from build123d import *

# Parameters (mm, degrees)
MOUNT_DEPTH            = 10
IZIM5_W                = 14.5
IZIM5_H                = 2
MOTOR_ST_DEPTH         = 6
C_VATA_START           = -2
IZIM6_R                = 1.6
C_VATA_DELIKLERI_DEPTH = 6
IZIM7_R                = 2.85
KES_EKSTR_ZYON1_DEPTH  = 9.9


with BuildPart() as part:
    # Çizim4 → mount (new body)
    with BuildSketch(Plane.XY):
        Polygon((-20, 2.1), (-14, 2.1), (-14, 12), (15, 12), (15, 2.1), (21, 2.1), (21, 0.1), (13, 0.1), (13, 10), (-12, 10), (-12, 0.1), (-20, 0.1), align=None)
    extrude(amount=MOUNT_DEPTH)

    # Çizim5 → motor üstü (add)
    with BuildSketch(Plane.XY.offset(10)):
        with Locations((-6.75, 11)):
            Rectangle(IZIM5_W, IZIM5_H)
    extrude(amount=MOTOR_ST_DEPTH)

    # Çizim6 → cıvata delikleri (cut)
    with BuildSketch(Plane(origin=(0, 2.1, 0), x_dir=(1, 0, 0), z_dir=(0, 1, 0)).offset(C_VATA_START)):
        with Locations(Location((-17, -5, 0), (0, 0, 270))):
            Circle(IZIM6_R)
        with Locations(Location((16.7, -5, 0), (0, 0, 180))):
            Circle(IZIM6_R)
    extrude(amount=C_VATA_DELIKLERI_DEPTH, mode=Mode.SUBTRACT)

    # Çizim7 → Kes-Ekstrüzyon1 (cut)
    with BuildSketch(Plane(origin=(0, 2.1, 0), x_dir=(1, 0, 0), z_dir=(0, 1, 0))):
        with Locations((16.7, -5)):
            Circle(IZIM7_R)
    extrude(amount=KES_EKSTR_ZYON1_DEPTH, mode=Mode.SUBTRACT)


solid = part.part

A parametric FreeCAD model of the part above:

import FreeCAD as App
import Part
import Sketcher

V = App.Vector

doc = App.newDocument("Part")
body = doc.addObject("PartDesign::Body", "Body")

sketch1 = body.newObject("Sketcher::SketchObject", "Sketch")
sketch1.AttachmentSupport = (doc.getObject("XY_Plane"), [""])
sketch1.MapMode = "FlatFace"
sketch1.addGeometry([
    Part.LineSegment(V(-14, 2.1, 0), V(-20, 2.1, 0)),
    Part.LineSegment(V(-20, 2.1, 0), V(-20, 0.1, 0)),
    Part.LineSegment(V(-20, 0.1, 0), V(-12, 0.1, 0)),
    Part.LineSegment(V(-12, 0.1, 0), V(-12, 10, 0)),
    Part.LineSegment(V(-12, 10, 0), V(13, 10, 0)),
    Part.LineSegment(V(13, 10, 0), V(13, 0.1, 0)),
    Part.LineSegment(V(13, 0.1, 0), V(21, 0.1, 0)),
    Part.LineSegment(V(21, 0.1, 0), V(21, 2.1, 0)),
    Part.LineSegment(V(21, 2.1, 0), V(15, 2.1, 0)),
    Part.LineSegment(V(15, 2.1, 0), V(15, 12, 0)),
    Part.LineSegment(V(15, 12, 0), V(-14, 12, 0)),
    Part.LineSegment(V(-14, 12, 0), V(-14, 2.1, 0)),
], False)
sketch1.addConstraint([
    Sketcher.Constraint("Coincident", 0, 2, 1, 1),
    Sketcher.Constraint("Coincident", 1, 2, 2, 1),
    Sketcher.Constraint("Coincident", 2, 2, 3, 1),
    Sketcher.Constraint("Coincident", 3, 2, 4, 1),
    Sketcher.Constraint("Coincident", 4, 2, 5, 1),
    Sketcher.Constraint("Coincident", 5, 2, 6, 1),
    Sketcher.Constraint("Coincident", 6, 2, 7, 1),
    Sketcher.Constraint("Coincident", 7, 2, 8, 1),
    Sketcher.Constraint("Coincident", 8, 2, 9, 1),
    Sketcher.Constraint("Coincident", 9, 2, 10, 1),
    Sketcher.Constraint("Coincident", 10, 2, 11, 1),
    Sketcher.Constraint("Coincident", 11, 2, 0, 1),
    Sketcher.Constraint("Horizontal", 0),
    Sketcher.Constraint("Vertical", 1),
    Sketcher.Constraint("Horizontal", 2),
    Sketcher.Constraint("Vertical", 3),
    Sketcher.Constraint("Horizontal", 4),
    Sketcher.Constraint("Vertical", 5),
    Sketcher.Constraint("Horizontal", 6),
    Sketcher.Constraint("Vertical", 7),
    Sketcher.Constraint("Horizontal", 8),
    Sketcher.Constraint("Vertical", 9),
    Sketcher.Constraint("Horizontal", 10),
    Sketcher.Constraint("Vertical", 11),
    Sketcher.Constraint("Horizontal", 2, 2, 5, 2),
    Sketcher.Constraint("Horizontal", 0, 2, 7, 2),
    Sketcher.Constraint("Equal", 2, 6),
    Sketcher.Constraint("Equal", 0, 8),
    Sketcher.Constraint("Equal", 5, 9),
    Sketcher.Constraint("DistanceX", 0, 2, 0, 1, 6.0),
    Sketcher.Constraint("DistanceX", 2, 1, 2, 2, 8.0),
    Sketcher.Constraint("DistanceX", 4, 1, 4, 2, 25.0),
    Sketcher.Constraint("DistanceY", 1, 2, 1, 1, 2.0),
    Sketcher.Constraint("DistanceY", 3, 1, 3, 2, 9.9),
    Sketcher.Constraint("DistanceX", 0, 2, -1, 1, 20.0),
    Sketcher.Constraint("DistanceY", -1, 1, 3, 2, 10.0),
])
pad1 = body.newObject("PartDesign::Pad", "Pad")
pad1.Profile = sketch1
pad1.Length = 10

sketch2 = body.newObject("Sketcher::SketchObject", "Sketch001")
sketch2.AttachmentSupport = (doc.getObject("XY_Plane"), [""])
sketch2.MapMode = "FlatFace"
sketch2.AttachmentOffset = App.Placement(V(0, 0, 10), App.Rotation())
sketch2.addGeometry([
    Part.LineSegment(V(-14, 12, 0), V(-14, 10, 0)),
    Part.LineSegment(V(-14, 10, 0), V(0.5, 10, 0)),
    Part.LineSegment(V(0.5, 10, 0), V(0.5, 12, 0)),
    Part.LineSegment(V(0.5, 12, 0), V(-14, 12, 0)),
], False)
sketch2.addConstraint([
    Sketcher.Constraint("Coincident", 0, 2, 1, 1),
    Sketcher.Constraint("Coincident", 1, 2, 2, 1),
    Sketcher.Constraint("Coincident", 2, 2, 3, 1),
    Sketcher.Constraint("Coincident", 3, 2, 0, 1),
    Sketcher.Constraint("Vertical", 0),
    Sketcher.Constraint("Horizontal", 1),
    Sketcher.Constraint("Vertical", 2),
    Sketcher.Constraint("Horizontal", 3),
    Sketcher.Constraint("DistanceY", 0, 2, 0, 1, 2.0),
    Sketcher.Constraint("DistanceX", 1, 1, 1, 2, 14.5),
    Sketcher.Constraint("DistanceX", 0, 2, -1, 1, 14.0),
    Sketcher.Constraint("DistanceY", -1, 1, 0, 2, 10.0),
])
pad2 = body.newObject("PartDesign::Pad", "Pad001")
pad2.Profile = sketch2
pad2.Length = 6

sketch3 = body.newObject("Sketcher::SketchObject", "Sketch002")
sketch3.AttachmentSupport = (doc.getObject("XZ_Plane"), [""])
sketch3.MapMode = "FlatFace"
sketch3.AttachmentOffset = App.Placement(V(0, 0, -0.1), App.Rotation())
sketch3.addGeometry([
    Part.Circle(V(-17, 5, 0), V(0, 0, 1), 1.6),
    Part.Circle(V(16.7, 5, 0), V(0, 0, 1), 1.6),
], False)
sketch3.addConstraint([
    Sketcher.Constraint("Equal", 0, 1),
    Sketcher.Constraint("Horizontal", 0, 3, 1, 3),
    Sketcher.Constraint("Diameter", 0, 3.2),
    Sketcher.Constraint("DistanceX", 0, 3, -1, 1, 17.0),
    Sketcher.Constraint("DistanceY", -1, 1, 0, 3, 5.0),
    Sketcher.Constraint("DistanceX", -1, 1, 1, 3, 16.7),
])
pocket1 = body.newObject("PartDesign::Pocket", "Pocket")
pocket1.Profile = sketch3
pocket1.Length = 6

sketch4 = body.newObject("Sketcher::SketchObject", "Sketch003")
sketch4.AttachmentSupport = (doc.getObject("XZ_Plane"), [""])
sketch4.MapMode = "FlatFace"
sketch4.AttachmentOffset = App.Placement(V(0, 0, -2.1), App.Rotation())
sketch4.addGeometry(Part.Circle(V(16.7, 5, 0), V(0, 0, 1), 2.9), False)
sketch4.addConstraint([
    Sketcher.Constraint("Diameter", 0, 5.7),
    Sketcher.Constraint("DistanceY", -1, 1, 0, 3, 5.0),
    Sketcher.Constraint("DistanceX", -1, 1, 0, 3, 16.7),
])
pocket2 = body.newObject("PartDesign::Pocket", "Pocket001")
pocket2.Profile = sketch4
pocket2.Length = 9.9

doc.recompute()
